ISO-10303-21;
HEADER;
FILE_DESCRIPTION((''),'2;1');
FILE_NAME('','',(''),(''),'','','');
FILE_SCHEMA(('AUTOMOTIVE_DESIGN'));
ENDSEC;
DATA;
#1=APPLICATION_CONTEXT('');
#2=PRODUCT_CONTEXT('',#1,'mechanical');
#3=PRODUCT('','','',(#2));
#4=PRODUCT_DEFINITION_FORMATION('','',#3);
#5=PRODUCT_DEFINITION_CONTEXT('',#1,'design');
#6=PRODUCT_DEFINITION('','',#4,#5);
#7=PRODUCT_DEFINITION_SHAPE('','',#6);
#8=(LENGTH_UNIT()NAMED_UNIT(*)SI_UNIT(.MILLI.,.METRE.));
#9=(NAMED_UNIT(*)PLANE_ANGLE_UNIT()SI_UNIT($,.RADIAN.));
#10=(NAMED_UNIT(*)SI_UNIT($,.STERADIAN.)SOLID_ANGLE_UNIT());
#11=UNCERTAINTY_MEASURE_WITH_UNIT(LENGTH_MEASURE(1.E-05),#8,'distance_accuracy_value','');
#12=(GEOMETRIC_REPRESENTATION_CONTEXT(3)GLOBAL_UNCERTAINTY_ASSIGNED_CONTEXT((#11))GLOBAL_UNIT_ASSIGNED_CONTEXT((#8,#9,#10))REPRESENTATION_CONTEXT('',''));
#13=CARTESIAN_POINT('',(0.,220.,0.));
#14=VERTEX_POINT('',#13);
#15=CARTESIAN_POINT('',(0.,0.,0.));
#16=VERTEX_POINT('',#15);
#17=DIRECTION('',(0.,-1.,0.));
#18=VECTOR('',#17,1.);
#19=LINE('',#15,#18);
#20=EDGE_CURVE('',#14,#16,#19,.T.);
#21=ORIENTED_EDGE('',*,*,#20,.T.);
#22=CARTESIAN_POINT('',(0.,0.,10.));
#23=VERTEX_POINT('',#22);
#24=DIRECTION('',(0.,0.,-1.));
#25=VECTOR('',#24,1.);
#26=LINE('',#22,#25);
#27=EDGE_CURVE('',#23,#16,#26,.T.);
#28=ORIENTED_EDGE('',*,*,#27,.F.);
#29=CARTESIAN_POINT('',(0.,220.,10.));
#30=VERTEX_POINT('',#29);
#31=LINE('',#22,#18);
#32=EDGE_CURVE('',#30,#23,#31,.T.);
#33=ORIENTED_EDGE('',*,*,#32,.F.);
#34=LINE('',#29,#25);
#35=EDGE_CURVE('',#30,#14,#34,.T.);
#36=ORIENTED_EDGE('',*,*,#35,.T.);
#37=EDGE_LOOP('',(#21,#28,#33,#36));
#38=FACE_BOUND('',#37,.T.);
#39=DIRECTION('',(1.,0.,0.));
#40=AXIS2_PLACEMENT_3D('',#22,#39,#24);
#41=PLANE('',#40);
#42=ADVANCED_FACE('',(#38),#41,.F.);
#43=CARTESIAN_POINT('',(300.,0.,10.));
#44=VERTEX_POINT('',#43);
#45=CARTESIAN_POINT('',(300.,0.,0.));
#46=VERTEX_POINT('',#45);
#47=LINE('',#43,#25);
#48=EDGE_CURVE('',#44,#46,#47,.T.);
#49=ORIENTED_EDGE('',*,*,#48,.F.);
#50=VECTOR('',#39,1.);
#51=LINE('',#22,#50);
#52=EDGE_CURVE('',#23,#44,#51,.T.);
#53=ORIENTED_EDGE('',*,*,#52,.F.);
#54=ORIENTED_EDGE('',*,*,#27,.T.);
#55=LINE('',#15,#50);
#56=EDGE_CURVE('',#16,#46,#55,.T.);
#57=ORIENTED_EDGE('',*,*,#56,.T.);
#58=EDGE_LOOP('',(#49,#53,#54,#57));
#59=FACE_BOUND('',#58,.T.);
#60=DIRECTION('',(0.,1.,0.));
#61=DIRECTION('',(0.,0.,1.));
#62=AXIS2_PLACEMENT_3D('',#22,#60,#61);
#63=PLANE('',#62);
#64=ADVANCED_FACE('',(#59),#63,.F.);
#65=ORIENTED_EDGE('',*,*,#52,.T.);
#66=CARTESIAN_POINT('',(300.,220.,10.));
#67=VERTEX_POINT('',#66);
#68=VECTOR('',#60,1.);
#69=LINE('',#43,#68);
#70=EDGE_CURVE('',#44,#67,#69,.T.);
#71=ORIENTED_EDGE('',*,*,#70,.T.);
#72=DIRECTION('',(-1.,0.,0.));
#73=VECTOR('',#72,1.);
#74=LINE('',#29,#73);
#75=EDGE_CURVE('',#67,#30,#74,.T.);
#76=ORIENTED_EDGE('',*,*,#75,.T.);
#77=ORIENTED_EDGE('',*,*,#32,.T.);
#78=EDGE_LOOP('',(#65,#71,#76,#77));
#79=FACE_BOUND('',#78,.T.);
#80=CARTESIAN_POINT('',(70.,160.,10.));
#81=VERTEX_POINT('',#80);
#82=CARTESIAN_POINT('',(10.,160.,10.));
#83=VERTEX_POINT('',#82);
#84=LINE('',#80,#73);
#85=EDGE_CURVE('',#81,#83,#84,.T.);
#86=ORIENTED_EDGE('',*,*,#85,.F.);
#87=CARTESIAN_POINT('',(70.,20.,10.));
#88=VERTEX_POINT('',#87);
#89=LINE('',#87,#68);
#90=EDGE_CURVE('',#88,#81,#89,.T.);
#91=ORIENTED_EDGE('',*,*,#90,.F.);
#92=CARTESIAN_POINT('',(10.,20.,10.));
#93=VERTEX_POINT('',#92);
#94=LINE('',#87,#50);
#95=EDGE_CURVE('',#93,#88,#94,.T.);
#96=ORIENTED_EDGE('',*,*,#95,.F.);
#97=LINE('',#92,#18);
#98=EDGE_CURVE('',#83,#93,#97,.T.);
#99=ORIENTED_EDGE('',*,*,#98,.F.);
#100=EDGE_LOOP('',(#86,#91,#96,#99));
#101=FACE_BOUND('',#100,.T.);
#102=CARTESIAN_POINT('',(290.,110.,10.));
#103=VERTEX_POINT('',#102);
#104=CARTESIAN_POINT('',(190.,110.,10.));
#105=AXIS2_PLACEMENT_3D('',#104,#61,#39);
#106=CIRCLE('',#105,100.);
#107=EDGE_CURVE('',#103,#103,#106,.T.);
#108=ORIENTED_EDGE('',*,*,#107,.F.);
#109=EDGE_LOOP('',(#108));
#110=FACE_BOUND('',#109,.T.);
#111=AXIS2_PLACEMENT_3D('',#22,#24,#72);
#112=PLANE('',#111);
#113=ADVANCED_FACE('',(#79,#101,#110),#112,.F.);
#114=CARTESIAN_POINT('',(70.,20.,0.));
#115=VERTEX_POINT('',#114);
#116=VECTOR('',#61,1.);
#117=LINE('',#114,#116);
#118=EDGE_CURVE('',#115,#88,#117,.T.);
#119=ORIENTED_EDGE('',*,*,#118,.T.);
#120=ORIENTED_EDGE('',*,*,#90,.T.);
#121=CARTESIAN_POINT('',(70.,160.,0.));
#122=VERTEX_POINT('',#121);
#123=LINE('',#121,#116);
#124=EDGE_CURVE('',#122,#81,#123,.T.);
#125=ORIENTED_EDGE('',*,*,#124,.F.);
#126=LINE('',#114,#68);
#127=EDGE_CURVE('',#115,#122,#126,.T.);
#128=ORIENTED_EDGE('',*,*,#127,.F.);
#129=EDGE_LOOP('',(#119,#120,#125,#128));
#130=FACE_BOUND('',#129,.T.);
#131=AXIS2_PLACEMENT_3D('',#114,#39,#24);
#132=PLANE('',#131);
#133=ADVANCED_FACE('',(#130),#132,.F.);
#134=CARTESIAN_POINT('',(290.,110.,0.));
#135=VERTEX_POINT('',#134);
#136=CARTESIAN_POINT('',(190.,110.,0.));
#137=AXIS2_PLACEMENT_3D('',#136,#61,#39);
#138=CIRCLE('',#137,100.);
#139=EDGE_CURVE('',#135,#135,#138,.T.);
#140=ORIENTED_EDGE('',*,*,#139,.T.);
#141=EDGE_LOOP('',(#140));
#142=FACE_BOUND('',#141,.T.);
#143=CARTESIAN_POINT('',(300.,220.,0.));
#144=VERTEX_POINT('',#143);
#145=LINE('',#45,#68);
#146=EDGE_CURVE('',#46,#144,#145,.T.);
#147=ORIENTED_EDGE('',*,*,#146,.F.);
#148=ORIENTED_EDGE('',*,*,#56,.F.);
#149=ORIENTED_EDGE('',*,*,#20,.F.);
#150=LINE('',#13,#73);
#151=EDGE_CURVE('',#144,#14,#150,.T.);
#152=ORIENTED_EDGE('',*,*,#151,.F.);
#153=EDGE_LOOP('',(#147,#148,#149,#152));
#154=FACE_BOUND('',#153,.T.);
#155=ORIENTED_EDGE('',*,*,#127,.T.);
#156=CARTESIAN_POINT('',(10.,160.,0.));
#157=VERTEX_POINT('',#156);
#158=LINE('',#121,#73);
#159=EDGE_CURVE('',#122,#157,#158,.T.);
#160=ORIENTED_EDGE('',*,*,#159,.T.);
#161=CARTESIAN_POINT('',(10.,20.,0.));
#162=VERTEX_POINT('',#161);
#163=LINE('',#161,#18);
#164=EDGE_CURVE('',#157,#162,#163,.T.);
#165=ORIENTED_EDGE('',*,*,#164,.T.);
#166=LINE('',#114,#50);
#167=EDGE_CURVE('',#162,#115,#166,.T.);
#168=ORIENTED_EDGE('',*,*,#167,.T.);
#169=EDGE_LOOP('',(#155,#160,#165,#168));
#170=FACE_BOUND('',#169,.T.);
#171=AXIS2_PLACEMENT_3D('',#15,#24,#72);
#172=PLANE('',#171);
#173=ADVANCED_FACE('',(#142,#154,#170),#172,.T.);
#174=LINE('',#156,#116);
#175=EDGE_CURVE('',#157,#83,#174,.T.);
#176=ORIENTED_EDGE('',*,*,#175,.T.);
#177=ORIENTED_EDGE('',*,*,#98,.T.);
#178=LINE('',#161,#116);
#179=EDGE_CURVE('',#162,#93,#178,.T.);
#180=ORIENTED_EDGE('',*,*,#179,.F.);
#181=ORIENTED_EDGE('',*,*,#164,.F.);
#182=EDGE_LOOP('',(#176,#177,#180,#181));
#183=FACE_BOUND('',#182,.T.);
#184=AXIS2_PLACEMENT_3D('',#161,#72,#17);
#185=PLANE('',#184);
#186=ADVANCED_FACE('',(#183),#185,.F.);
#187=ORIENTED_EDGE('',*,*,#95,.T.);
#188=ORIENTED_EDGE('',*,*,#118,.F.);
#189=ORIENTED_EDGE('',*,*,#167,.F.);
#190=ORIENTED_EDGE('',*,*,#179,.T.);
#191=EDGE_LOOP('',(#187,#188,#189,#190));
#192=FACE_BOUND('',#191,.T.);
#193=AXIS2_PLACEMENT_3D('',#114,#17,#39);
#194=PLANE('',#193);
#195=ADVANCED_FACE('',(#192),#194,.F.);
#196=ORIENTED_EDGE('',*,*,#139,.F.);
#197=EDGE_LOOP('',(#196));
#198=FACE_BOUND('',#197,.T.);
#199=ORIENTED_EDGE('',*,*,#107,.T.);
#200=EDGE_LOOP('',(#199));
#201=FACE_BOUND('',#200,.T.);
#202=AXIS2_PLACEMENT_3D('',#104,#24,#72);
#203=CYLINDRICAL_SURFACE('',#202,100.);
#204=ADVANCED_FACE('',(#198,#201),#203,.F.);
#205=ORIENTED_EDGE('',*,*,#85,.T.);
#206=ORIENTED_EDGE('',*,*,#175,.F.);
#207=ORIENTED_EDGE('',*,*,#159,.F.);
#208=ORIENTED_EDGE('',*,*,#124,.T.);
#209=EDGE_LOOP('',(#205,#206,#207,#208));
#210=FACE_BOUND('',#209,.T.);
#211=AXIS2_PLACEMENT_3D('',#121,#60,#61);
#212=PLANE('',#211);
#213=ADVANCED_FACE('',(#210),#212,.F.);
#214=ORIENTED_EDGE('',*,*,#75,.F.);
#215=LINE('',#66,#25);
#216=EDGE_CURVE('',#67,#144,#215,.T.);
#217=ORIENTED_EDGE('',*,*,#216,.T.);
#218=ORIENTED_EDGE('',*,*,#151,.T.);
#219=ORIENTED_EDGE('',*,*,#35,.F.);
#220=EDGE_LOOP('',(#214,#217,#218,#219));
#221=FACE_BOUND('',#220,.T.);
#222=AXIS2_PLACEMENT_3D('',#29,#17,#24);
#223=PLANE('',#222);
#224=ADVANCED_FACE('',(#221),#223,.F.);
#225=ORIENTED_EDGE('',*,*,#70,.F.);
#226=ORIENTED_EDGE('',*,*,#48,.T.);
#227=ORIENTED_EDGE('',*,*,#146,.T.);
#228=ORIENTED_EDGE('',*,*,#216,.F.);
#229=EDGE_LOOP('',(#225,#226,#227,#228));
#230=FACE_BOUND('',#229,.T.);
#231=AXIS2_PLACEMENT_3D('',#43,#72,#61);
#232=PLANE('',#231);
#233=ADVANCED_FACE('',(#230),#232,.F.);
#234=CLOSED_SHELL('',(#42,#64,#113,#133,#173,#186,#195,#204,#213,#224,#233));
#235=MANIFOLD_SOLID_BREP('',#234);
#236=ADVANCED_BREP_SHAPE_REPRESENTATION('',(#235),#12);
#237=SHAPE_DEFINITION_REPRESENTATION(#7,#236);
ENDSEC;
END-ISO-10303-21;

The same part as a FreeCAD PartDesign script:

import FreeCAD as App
import Part
import Sketcher
Q = App.Units.Quantity


def add_polygon(sketch, points):
    """Adds a closed chain of lines whose ends are joined by coincident constraints."""
    first, n = sketch.GeometryCount, len(points)
    for a, b in zip(points, points[1:] + points[:1]):
        sketch.addGeometry(Part.LineSegment(App.Vector(*a, 0), App.Vector(*b, 0)), False)
    for i in range(n):
        sketch.addConstraint(Sketcher.Constraint("Coincident", first + i, 2, first + (i + 1) % n, 1))

doc = App.newDocument("Part")
body = doc.addObject("PartDesign::Body", "Body")

# Sketch on XY plane
sketch1 = body.newObject("Sketcher::SketchObject", "Sketch")
sketch1.AttachmentSupport = (doc.getObject("XY_Plane"), [""])
sketch1.MapMode = "FlatFace"
add_polygon(sketch1, [(0, 220), (0, 0), (300, 0), (300, 220)])  # lines 0-3
sketch1.addGeometry(Part.Circle(App.Vector(190, 110, 0), App.Vector(0, 0, 1), 100), False)  # 4
sketch1.addConstraint([
    Sketcher.Constraint("Vertical", 0),
    Sketcher.Constraint("Horizontal", 1),
    Sketcher.Constraint("Vertical", 2),
    Sketcher.Constraint("Horizontal", 3),
    Sketcher.Constraint("Coincident", 0, 2, -1, 1),
    Sketcher.Constraint("Diameter", 4, Q("200 mm")),
    Sketcher.Constraint("DistanceX", 1, 1, 1, 2, Q("300 mm")),
    Sketcher.Constraint("DistanceY", 0, 2, 0, 1, Q("220 mm")),
    Sketcher.Constraint("DistanceX", -1, 1, 4, 3, Q("190 mm")),
    Sketcher.Constraint("DistanceY", -1, 1, 4, 3, Q("110 mm")),
])
pad1 = body.newObject("PartDesign::Pad", "Pad")
pad1.Profile = sketch1
pad1.Length = 10

# Sketch on XY plane
sketch2 = body.newObject("Sketcher::SketchObject", "Sketch001")
sketch2.AttachmentSupport = (doc.getObject("XY_Plane"), [""])
sketch2.MapMode = "FlatFace"
sketch2.AttachmentOffset = App.Placement(App.Vector(0, 0, 10), App.Rotation())
add_polygon(sketch2, [(10, 160), (10, 20), (70, 20), (70, 160)])  # lines 0-3
sketch2.addConstraint([
    Sketcher.Constraint("Vertical", 0),
    Sketcher.Constraint("Horizontal", 1),
    Sketcher.Constraint("Vertical", 2),
    Sketcher.Constraint("Horizontal", 3),
    Sketcher.Constraint("DistanceX", 1, 1, 1, 2, Q("60 mm")),
    Sketcher.Constraint("DistanceY", 0, 2, 0, 1, Q("140 mm")),
    Sketcher.Constraint("DistanceX", -1, 1, 0, 2, Q("10 mm")),
    Sketcher.Constraint("DistanceY", -1, 1, 0, 2, Q("20 mm")),
])
pocket1 = body.newObject("PartDesign::Pocket", "Pocket")
pocket1.Profile = sketch2
pocket1.Length = 10

doc.recompute()
